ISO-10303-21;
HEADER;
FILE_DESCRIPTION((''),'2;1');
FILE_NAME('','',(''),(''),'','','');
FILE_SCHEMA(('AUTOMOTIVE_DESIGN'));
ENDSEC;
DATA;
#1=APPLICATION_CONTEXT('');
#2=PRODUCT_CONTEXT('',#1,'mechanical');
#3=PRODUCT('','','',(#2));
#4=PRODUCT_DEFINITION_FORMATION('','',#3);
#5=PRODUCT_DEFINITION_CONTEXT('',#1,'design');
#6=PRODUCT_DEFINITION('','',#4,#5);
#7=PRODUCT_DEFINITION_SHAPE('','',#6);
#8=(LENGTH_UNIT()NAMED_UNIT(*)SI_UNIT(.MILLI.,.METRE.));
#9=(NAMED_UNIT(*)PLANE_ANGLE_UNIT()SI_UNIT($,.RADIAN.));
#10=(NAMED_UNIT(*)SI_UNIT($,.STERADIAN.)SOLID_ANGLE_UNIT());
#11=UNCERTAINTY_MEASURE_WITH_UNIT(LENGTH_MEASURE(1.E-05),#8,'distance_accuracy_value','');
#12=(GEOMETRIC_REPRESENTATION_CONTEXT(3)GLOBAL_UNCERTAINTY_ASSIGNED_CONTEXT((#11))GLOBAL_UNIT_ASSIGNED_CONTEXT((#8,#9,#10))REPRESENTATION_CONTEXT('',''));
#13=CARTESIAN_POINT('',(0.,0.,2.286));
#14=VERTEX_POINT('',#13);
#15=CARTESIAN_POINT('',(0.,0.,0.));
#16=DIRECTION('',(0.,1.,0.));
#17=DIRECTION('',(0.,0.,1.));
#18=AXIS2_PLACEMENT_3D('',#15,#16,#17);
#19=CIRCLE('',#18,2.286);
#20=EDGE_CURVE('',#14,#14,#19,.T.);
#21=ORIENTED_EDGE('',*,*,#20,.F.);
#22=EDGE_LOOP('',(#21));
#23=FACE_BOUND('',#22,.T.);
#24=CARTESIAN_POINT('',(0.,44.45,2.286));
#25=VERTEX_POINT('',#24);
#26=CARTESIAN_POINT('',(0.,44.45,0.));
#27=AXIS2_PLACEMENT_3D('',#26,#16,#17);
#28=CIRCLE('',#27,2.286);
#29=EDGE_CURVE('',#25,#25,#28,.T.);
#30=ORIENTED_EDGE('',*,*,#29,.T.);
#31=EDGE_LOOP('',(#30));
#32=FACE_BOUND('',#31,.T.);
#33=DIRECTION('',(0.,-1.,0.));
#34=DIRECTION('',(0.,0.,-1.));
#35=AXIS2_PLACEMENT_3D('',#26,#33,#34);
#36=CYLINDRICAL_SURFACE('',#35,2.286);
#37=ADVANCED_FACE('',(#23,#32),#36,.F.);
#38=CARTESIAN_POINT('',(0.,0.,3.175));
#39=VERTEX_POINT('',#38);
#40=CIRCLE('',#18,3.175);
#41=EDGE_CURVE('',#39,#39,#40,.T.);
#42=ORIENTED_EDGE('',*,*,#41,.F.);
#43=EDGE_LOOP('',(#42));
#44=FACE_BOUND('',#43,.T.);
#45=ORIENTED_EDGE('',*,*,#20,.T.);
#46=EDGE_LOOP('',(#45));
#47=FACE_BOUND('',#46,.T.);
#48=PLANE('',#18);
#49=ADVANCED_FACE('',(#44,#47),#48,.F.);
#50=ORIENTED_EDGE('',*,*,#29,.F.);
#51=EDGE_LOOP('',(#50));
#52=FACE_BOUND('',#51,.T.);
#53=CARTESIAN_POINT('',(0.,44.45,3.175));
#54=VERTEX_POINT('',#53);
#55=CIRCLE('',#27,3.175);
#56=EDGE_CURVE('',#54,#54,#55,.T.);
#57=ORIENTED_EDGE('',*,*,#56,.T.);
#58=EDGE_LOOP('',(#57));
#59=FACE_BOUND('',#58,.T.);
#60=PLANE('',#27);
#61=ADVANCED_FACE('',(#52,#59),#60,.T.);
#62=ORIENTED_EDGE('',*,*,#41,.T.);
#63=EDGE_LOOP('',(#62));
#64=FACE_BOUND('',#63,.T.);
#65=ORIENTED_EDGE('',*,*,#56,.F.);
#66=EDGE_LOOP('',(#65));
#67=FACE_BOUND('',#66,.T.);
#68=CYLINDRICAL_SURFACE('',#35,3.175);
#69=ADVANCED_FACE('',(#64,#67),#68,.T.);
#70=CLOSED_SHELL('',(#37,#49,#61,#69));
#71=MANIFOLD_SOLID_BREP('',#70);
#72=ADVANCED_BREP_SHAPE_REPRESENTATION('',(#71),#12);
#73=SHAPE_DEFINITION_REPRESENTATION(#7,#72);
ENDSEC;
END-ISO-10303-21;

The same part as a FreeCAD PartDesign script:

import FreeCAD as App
import Part
import Sketcher
from FreeCAD import Vector
Q = App.Units.Quantity

doc = App.newDocument("Part")
body = doc.addObject("PartDesign::Body", "Body")

# Sketch on XZ plane
sketch1 = doc.addObject("Sketcher::SketchObject", "Sketch")
body.addObject(sketch1)
sketch1.AttachmentSupport = (doc.XZ_Plane, [""])
sketch1.MapMode = "FlatFace"
sketch1.addGeometry([
    Part.Circle(Vector(0, 0, 0), Vector(0, 0, 1), 3.2),
    Part.Circle(Vector(0, 0, 0), Vector(0, 0, 1), 2.3),
], False)
sketch1.addConstraint([
    Sketcher.Constraint("Coincident", 0, 3, -1, 1),
    Sketcher.Constraint("Coincident", 1, 3, -1, 1),
    Sketcher.Constraint("Diameter", 0, Q("0.25 in")),
    Sketcher.Constraint("Diameter", 1, Q("0.18 in")),
])
pad1 = doc.addObject("PartDesign::Pad", "Pad")
body.addObject(pad1)
pad1.Profile = sketch1
pad1.Length = Q("1.75 in")
pad1.Reversed = True

doc.recompute()
